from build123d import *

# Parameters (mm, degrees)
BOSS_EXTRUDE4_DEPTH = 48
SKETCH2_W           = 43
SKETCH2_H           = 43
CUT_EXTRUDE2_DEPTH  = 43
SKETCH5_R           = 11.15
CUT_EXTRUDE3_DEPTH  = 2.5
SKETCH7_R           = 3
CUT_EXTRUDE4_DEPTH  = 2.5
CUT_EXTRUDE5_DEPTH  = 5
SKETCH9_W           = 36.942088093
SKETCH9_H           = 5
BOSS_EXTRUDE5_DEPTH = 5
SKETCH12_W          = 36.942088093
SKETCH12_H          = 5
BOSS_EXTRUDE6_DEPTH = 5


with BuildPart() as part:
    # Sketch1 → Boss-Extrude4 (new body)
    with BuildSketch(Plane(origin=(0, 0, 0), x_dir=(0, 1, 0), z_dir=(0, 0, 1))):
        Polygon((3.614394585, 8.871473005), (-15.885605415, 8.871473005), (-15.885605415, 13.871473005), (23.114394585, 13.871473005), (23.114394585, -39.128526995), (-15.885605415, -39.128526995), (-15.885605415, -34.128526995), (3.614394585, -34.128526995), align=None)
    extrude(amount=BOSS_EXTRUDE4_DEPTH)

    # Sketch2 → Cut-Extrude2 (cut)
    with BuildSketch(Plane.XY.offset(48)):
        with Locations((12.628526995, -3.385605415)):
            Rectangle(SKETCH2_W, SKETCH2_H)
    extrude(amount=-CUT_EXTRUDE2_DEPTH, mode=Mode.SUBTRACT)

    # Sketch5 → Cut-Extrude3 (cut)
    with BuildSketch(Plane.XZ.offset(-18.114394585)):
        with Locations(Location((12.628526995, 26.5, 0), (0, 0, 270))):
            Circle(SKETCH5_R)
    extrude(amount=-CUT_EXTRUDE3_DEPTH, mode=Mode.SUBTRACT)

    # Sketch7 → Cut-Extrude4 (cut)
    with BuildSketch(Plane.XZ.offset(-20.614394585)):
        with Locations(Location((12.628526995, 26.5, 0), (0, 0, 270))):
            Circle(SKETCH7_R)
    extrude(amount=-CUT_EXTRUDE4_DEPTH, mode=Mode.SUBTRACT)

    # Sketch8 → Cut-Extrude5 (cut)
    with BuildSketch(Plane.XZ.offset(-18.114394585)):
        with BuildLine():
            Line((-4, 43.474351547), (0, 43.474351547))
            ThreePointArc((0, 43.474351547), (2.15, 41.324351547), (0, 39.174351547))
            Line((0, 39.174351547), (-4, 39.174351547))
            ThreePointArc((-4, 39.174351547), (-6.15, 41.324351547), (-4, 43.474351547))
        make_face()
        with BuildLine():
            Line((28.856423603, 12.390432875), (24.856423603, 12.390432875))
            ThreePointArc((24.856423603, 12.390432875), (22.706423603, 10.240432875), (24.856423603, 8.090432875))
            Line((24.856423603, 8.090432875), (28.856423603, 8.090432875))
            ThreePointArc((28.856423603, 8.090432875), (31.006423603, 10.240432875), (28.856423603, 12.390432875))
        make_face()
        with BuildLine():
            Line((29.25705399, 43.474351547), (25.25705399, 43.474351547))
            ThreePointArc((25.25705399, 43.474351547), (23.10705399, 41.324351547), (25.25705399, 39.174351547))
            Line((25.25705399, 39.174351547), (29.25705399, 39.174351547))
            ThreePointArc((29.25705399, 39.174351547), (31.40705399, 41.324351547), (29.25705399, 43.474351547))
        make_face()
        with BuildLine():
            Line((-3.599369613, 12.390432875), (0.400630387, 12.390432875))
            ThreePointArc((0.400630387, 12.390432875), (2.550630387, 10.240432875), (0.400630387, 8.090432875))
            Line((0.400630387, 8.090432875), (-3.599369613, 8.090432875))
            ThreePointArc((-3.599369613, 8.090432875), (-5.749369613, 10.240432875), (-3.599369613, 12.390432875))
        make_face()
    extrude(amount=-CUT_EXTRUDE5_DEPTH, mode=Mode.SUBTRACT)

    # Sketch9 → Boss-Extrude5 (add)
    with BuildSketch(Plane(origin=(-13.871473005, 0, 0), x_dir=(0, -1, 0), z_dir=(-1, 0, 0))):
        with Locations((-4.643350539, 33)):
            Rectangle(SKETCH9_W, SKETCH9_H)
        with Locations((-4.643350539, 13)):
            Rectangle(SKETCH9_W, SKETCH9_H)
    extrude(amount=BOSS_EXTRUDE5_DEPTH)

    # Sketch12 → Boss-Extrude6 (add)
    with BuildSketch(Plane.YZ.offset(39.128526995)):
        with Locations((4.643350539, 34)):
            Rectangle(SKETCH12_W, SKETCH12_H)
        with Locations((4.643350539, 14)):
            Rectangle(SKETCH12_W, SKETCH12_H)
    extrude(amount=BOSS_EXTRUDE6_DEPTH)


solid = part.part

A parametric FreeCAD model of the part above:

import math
import FreeCAD as App
import Part
import Sketcher

V = App.Vector


def add_polygon(sketch, points):
    """Adds a closed chain of lines whose ends are joined by coincident constraints."""
    first, n = sketch.GeometryCount, len(points)
    for a, b in zip(points, points[1:] + points[:1]):
        sketch.addGeometry(Part.LineSegment(App.Vector(*a, 0), App.Vector(*b, 0)), False)
    for i in range(n):
        sketch.addConstraint(Sketcher.Constraint("Coincident", first + i, 2, first + (i + 1) % n, 1))

doc = App.newDocument("Part")
body = doc.addObject("PartDesign::Body", "Body")

sketch1 = doc.addObject("Sketcher::SketchObject", "Sketch")
body.addObject(sketch1)
sketch1.AttachmentSupport = (doc.XY_Plane, [""])
sketch1.MapMode = "FlatFace"
add_polygon(sketch1, [(-9, -16), (-9, 4), (34, 4), (34, -16), (39, -16), (39, 23), (-14, 23), (-14, -16)])
sketch1.addConstraint([
    Sketcher.Constraint("Vertical", 0),
    Sketcher.Constraint("Horizontal", 1),
    Sketcher.Constraint("Vertical", 2),
    Sketcher.Constraint("Horizontal", 3),
    Sketcher.Constraint("Vertical", 4),
    Sketcher.Constraint("Horizontal", 5),
    Sketcher.Constraint("Vertical", 6),
    Sketcher.Constraint("Horizontal", 7),
    Sketcher.Constraint("Horizontal", 3, 2, 6, 2),
    Sketcher.Constraint("Equal", 3, 7),
    Sketcher.Constraint("DistanceX", 1, 1, 1, 2, 43.0),
    Sketcher.Constraint("DistanceX", 3, 1, 3, 2, 5.0),
    Sketcher.Constraint("DistanceY", 4, 1, 4, 2, 39.0),
    Sketcher.Constraint("DistanceY", 0, 1, 0, 2, 19.5),
    Sketcher.Constraint("DistanceX", 0, 2, -1, 1, 8.871473),
    Sketcher.Constraint("DistanceY", -1, 1, 0, 2, 3.614395),
])
pad1 = doc.addObject("PartDesign::Pad", "Pad")
body.addObject(pad1)
pad1.Profile = sketch1
pad1.Length = 48

sketch2 = doc.addObject("Sketcher::SketchObject", "Sketch001")
body.addObject(sketch2)
sketch2.AttachmentSupport = (doc.XY_Plane, [""])
sketch2.MapMode = "FlatFace"
sketch2.AttachmentOffset = App.Placement(V(0, 0, 48), App.Rotation())
add_polygon(sketch2, [(-9, 18), (-9, -25), (34, -25), (34, 18)])
sketch2.addConstraint([
    Sketcher.Constraint("Vertical", 0),
    Sketcher.Constraint("Horizontal", 1),
    Sketcher.Constraint("Vertical", 2),
    Sketcher.Constraint("Horizontal", 3),
    Sketcher.Constraint("Equal", 3, 0),
    Sketcher.Constraint("DistanceX", 1, 1, 1, 2, 43.0),
    Sketcher.Constraint("DistanceX", 0, 2, -1, 1, 8.871473),
    Sketcher.Constraint("DistanceY", 0, 2, -1, 1, 24.885605),
])
pocket1 = doc.addObject("PartDesign::Pocket", "Pocket")
body.addObject(pocket1)
pocket1.Profile = sketch2
pocket1.Length = 43

sketch3 = doc.addObject("Sketcher::SketchObject", "Sketch002")
body.addObject(sketch3)
sketch3.AttachmentSupport = (doc.XZ_Plane, [""])
sketch3.MapMode = "FlatFace"
sketch3.AttachmentOffset = App.Placement(V(0, 0, -18.114395), App.Rotation())
sketch3.addGeometry(Part.Circle(V(13, 26, 0), V(0, 0, 1), 11), False)
sketch3.addConstraint([
    Sketcher.Constraint("Diameter", 0, 22.3),
    Sketcher.Constraint("DistanceY", -1, 1, 0, 3, 26.5),
    Sketcher.Constraint("DistanceX", -1, 1, 0, 3, 12.628527),
])
pocket2 = doc.addObject("PartDesign::Pocket", "Pocket001")
body.addObject(pocket2)
pocket2.Profile = sketch3
pocket2.Length = 2.5

sketch4 = doc.addObject("Sketcher::SketchObject", "Sketch003")
body.addObject(sketch4)
sketch4.AttachmentSupport = (doc.XZ_Plane, [""])
sketch4.MapMode = "FlatFace"
sketch4.AttachmentOffset = App.Placement(V(0, 0, -20.614395), App.Rotation())
sketch4.addGeometry(Part.Circle(V(12.6, 26.5, 0), V(0, 0, 1), 3), False)
sketch4.addConstraint([
    Sketcher.Constraint("Diameter", 0, 6.0),
    Sketcher.Constraint("DistanceY", -1, 1, 0, 3, 26.5),
    Sketcher.Constraint("DistanceX", -1, 1, 0, 3, 12.628527),
])
pocket3 = doc.addObject("PartDesign::Pocket", "Pocket002")
body.addObject(pocket3)
pocket3.Profile = sketch4
pocket3.Length = 2.5

sketch5 = doc.addObject("Sketcher::SketchObject", "Sketch004")
body.addObject(sketch5)
sketch5.AttachmentSupport = (doc.XZ_Plane, [""])
sketch5.MapMode = "FlatFace"
sketch5.AttachmentOffset = App.Placement(V(0, 0, -18.114395), App.Rotation())
sketch5.addGeometry([
    Part.LineSegment(V(0, 43.5, 0), V(-4, 43.5, 0)),
    Part.ArcOfCircle(Part.Circle(V(-4, 41.3, 0), V(0, 0, 1), 2.1), math.radians(90), math.radians(270)),
    Part.LineSegment(V(-4, 39.2, 0), V(0, 39.2, 0)),
    Part.ArcOfCircle(Part.Circle(V(0, 41.3, 0), V(0, 0, 1), 2.1), math.radians(-90), math.radians(90)),
    Part.LineSegment(V(28.9, 12.4, 0), V(24.9, 12.4, 0)),
    Part.ArcOfCircle(Part.Circle(V(24.9, 10.2, 0), V(0, 0, 1), 2.1), math.radians(90), math.radians(270)),
    Part.LineSegment(V(24.9, 8.1, 0), V(28.9, 8.1, 0)),
    Part.ArcOfCircle(Part.Circle(V(28.9, 10.2, 0), V(0, 0, 1), 2.1), math.radians(-90), math.radians(90)),
    Part.LineSegment(V(29.3, 43.5, 0), V(25.3, 43.5, 0)),
    Part.ArcOfCircle(Part.Circle(V(25.3, 41.3, 0), V(0, 0, 1), 2.1), math.radians(90), math.radians(270)),
    Part.LineSegment(V(25.3, 39.2, 0), V(29.3, 39.2, 0)),
    Part.ArcOfCircle(Part.Circle(V(29.3, 41.3, 0), V(0, 0, 1), 2.1), math.radians(-90), math.radians(90)),
    Part.LineSegment(V(0.4, 12.4, 0), V(-3.6, 12.4, 0)),
    Part.ArcOfCircle(Part.Circle(V(-3.6, 10.2, 0), V(0, 0, 1), 2.1), math.radians(90), math.radians(270)),
    Part.LineSegment(V(-3.6, 8.1, 0), V(0.4, 8.1, 0)),
    Part.ArcOfCircle(Part.Circle(V(0.4, 10.2, 0), V(0, 0, 1), 2.1), math.radians(-90), math.radians(90)),
], False)
sketch5.addConstraint([
    Sketcher.Constraint("Tangent", 0, 2, 1, 1),
    Sketcher.Constraint("Tangent", 1, 2, 2, 1),
    Sketcher.Constraint("Tangent", 2, 2, 3, 1),
    Sketcher.Constraint("Tangent", 3, 2, 0, 1),
    Sketcher.Constraint("Tangent", 4, 2, 5, 1),
    Sketcher.Constraint("Tangent", 5, 2, 6, 1),
    Sketcher.Constraint("Tangent", 6, 2, 7, 1),
    Sketcher.Constraint("Tangent", 7, 2, 4, 1),
    Sketcher.Constraint("Tangent", 8, 2, 9, 1),
    Sketcher.Constraint("Tangent", 9, 2, 10, 1),
    Sketcher.Constraint("Tangent", 10, 2, 11, 1),
    Sketcher.Constraint("Tangent", 11, 2, 8, 1),
    Sketcher.Constraint("Tangent", 12, 2, 13, 1),
    Sketcher.Constraint("Tangent", 13, 2, 14, 1),
    Sketcher.Constraint("Tangent", 14, 2, 15, 1),
    Sketcher.Constraint("Tangent", 15, 2, 12, 1),
    Sketcher.Constraint("Horizontal", 0),
    Sketcher.Constraint("Horizontal", 2),
    Sketcher.Constraint("Horizontal", 4),
    Sketcher.Constraint("Horizontal", 6),
    Sketcher.Constraint("Horizontal", 8),
    Sketcher.Constraint("Horizontal", 10),
    Sketcher.Constraint("Horizontal", 12),
    Sketcher.Constraint("Horizontal", 14),
    Sketcher.Constraint("Equal", 3, 5),
    Sketcher.Constraint("Equal", 7, 9),
    Sketcher.Constraint("Equal", 11, 13),
    Sketcher.Constraint("PointOnObject", 3, 3, -2),
    Sketcher.Constraint("Horizontal", 3, 3, 9, 3),
    Sketcher.Constraint("Horizontal", 7, 3, 13, 3),
    Sketcher.Constraint("Equal", 2, 4),
    Sketcher.Constraint("Equal", 6, 8),
    Sketcher.Constraint("Equal", 10, 12),
    Sketcher.Constraint("DistanceX", 0, 2, 0, 1, 4.0),
    Sketcher.Constraint("Radius", 1, 2.15),
    Sketcher.Constraint("DistanceY", -1, 1, 1, 3, 41.324352),
    Sketcher.Constraint("DistanceX", 13, 3, -1, 1, 3.59937),
    Sketcher.Constraint("DistanceY", 5, 3, 3, 3, 31.083919),
    Sketcher.Constraint("DistanceX", 5, 3, 9, 3, 0.40063),
    Sketcher.Constraint("DistanceX", -1, 1, 5, 3, 24.856424),
])
pocket4 = doc.addObject("PartDesign::Pocket", "Pocket003")
body.addObject(pocket4)
pocket4.Profile = sketch5
pocket4.Length = 5

sketch6 = doc.addObject("Sketcher::SketchObject", "Sketch005")
body.addObject(sketch6)
sketch6.AttachmentSupport = (doc.YZ_Plane, [""])
sketch6.MapMode = "FlatFace"
sketch6.AttachmentOffset = App.Placement(V(0, 0, -13.871473), App.Rotation())
add_polygon(sketch6, [(23, 36), (23, 30), (-14, 30), (-14, 36)])
add_polygon(sketch6, [(23, 16), (23, 10), (-14, 10), (-14, 16)])
sketch6.addConstraint([
    Sketcher.Constraint("Vertical", 0),
    Sketcher.Constraint("Horizontal", 1),
    Sketcher.Constraint("Vertical", 2),
    Sketcher.Constraint("Horizontal", 3),
    Sketcher.Constraint("Vertical", 4),
    Sketcher.Constraint("Horizontal", 5),
    Sketcher.Constraint("Vertical", 6),
    Sketcher.Constraint("Horizontal", 7),
    Sketcher.Constraint("Vertical", 3, 2, 4, 2),
    Sketcher.Constraint("Vertical", 2, 2, 5, 2),
    Sketcher.Constraint("Equal", 2, 4),
    Sketcher.Constraint("DistanceY", 0, 2, 0, 1, 5.0),
    Sketcher.Constraint("DistanceY", 4, 2, 0, 2, 20.0),
    Sketcher.Constraint("DistanceY", -1, 1, 0, 2, 30.5),
    Sketcher.Constraint("DistanceX", 1, 2, 1, 1, 36.942088),
    Sketcher.Constraint("DistanceX", -1, 1, 0, 2, 23.114395),
])
pad2 = doc.addObject("PartDesign::Pad", "Pad001")
body.addObject(pad2)
pad2.Profile = sketch6
pad2.Length = 5
pad2.Reversed = True

sketch7 = doc.addObject("Sketcher::SketchObject", "Sketch006")
body.addObject(sketch7)
sketch7.AttachmentSupport = (doc.YZ_Plane, [""])
sketch7.MapMode = "FlatFace"
sketch7.AttachmentOffset = App.Placement(V(0, 0, 39.128527), App.Rotation())
add_polygon(sketch7, [(-14, 36), (-14, 32), (23, 32), (23, 36)])
add_polygon(sketch7, [(-14, 16), (-14, 12), (23, 12), (23, 16)])
sketch7.addConstraint([
    Sketcher.Constraint("Vertical", 0),
    Sketcher.Constraint("Horizontal", 1),
    Sketcher.Constraint("Vertical", 2),
    Sketcher.Constraint("Horizontal", 3),
    Sketcher.Constraint("Vertical", 4),
    Sketcher.Constraint("Horizontal", 5),
    Sketcher.Constraint("Vertical", 6),
    Sketcher.Constraint("Horizontal", 7),
    Sketcher.Constraint("Vertical", 3, 2, 4, 2),
    Sketcher.Constraint("Vertical", 2, 2, 5, 2),
    Sketcher.Constraint("Equal", 2, 4),
    Sketcher.Constraint("DistanceY", 0, 2, 0, 1, 5.0),
    Sketcher.Constraint("DistanceY", 4, 2, 0, 2, 20.0),
    Sketcher.Constraint("DistanceY", -1, 1, 0, 2, 31.5),
    Sketcher.Constraint("DistanceX", 1, 1, 1, 2, 36.942088),
    Sketcher.Constraint("DistanceX", 0, 2, -1, 1, 13.827694),
])
pad3 = doc.addObject("PartDesign::Pad", "Pad002")
body.addObject(pad3)
pad3.Profile = sketch7
pad3.Length = 5

doc.recompute()
